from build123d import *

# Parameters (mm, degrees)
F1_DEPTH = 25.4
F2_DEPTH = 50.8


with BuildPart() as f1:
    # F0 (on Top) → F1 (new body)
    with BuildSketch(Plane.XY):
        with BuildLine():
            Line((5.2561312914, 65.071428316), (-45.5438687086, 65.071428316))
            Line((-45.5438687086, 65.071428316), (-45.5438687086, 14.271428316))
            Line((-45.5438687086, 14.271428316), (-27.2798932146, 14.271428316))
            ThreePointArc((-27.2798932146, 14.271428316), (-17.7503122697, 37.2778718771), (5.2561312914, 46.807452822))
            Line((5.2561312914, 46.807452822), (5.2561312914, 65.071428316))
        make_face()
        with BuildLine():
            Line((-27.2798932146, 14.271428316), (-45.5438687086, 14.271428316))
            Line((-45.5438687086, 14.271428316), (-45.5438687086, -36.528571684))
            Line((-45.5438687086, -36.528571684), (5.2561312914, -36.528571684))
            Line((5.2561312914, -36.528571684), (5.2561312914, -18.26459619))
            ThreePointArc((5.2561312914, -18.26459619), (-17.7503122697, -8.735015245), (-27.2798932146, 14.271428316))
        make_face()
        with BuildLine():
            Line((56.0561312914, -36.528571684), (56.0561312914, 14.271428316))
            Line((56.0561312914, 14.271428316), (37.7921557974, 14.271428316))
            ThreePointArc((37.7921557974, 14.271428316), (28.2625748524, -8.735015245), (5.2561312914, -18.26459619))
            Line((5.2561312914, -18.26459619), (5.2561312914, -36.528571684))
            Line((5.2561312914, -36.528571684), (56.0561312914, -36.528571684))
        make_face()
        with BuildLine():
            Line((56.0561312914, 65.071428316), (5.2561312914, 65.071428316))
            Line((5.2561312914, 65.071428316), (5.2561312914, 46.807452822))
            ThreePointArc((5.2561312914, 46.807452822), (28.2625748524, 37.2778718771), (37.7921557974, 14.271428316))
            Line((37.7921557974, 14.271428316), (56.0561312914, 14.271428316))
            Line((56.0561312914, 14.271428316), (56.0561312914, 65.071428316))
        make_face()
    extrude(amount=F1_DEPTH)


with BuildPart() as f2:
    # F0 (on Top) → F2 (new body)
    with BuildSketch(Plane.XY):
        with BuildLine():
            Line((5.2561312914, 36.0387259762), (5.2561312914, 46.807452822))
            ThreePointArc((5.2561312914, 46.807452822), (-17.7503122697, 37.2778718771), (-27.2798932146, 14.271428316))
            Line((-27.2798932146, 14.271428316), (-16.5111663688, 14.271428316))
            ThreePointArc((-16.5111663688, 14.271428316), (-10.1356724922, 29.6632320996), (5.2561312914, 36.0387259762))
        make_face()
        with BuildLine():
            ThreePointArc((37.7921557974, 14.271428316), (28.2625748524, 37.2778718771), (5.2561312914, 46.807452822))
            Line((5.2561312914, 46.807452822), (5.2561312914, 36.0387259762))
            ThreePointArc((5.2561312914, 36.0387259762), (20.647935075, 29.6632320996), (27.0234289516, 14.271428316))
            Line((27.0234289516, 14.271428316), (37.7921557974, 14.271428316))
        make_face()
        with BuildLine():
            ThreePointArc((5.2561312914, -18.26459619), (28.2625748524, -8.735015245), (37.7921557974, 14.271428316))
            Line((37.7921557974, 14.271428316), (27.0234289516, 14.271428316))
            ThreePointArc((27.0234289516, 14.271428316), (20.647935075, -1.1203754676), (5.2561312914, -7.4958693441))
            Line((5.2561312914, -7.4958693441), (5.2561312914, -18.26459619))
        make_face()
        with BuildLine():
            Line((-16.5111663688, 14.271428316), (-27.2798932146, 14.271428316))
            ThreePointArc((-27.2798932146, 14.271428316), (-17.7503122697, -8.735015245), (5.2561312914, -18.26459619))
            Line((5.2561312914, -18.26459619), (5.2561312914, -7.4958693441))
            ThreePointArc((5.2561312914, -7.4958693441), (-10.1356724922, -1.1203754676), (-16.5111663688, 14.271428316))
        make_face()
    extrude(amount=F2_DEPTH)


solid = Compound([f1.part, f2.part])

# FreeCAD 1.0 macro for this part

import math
import FreeCAD as App
import Part
import Sketcher

V = App.Vector
Q = App.Units.Quantity

doc = App.newDocument("Part")
body = doc.addObject("PartDesign::Body", "Body")

# Sketch on XY plane
sketch1 = body.newObject("Sketcher::SketchObject", "Sketch")
sketch1.AttachmentSupport = (doc.getObject("XY_Plane"), [""])
sketch1.MapMode = "FlatFace"
sketch1.addGeometry([
    Part.LineSegment(V(-45.543869, 65.071428, 0), V(-45.543869, -36.528572, 0)),  # 0
    Part.LineSegment(V(-45.543869, -36.528572, 0), V(56.056131, -36.528572, 0)),  # 1
    Part.LineSegment(V(56.056131, -36.528572, 0), V(56.056131, 65.071428, 0)),  # 2
    Part.LineSegment(V(56.056131, 65.071428, 0), V(-45.543869, 65.071428, 0)),  # 3
    Part.ArcOfCircle(Part.Circle(V(5.256131, 14.271428, 0), V(0, 0, 1), 32.536025), math.radians(-90), math.radians(0)),  # 4
    Part.ArcOfCircle(Part.Circle(V(5.256131, 14.271428, 0), V(0, 0, 1), 32.536025), math.radians(180), math.radians(270)),  # 5
    Part.ArcOfCircle(Part.Circle(V(5.256131, 14.271428, 0), V(0, 0, 1), 32.536025), math.radians(90), math.radians(180)),  # 6
    Part.ArcOfCircle(Part.Circle(V(5.256131, 14.271428, 0), V(0, 0, 1), 32.536025), math.radians(0), math.radians(90)),  # 7
], False)
sketch1.addConstraint([
    Sketcher.Constraint("Coincident", 0, 2, 1, 1),
    Sketcher.Constraint("Coincident", 1, 2, 2, 1),
    Sketcher.Constraint("Coincident", 2, 2, 3, 1),
    Sketcher.Constraint("Coincident", 3, 2, 0, 1),
    Sketcher.Constraint("Tangent", 4, 1, 5, 2),
    Sketcher.Constraint("Tangent", 5, 1, 6, 2),
    Sketcher.Constraint("Tangent", 6, 1, 7, 2),
    Sketcher.Constraint("Tangent", 7, 1, 4, 2),
    Sketcher.Constraint("Vertical", 0),
    Sketcher.Constraint("Horizontal", 1),
    Sketcher.Constraint("Vertical", 2),
    Sketcher.Constraint("Horizontal", 3),
    Sketcher.Constraint("Equal", 4, 5),
    Sketcher.Constraint("Horizontal", 7, 3, 5, 1),
    Sketcher.Constraint("Horizontal", 5, 1, 7, 1),
    Sketcher.Constraint("Vertical", 7, 3, 4, 1),
    Sketcher.Constraint("Vertical", 4, 1, 6, 1),
    Sketcher.Constraint("Equal", 3, 0),
    Sketcher.Constraint("DistanceX", 1, 1, 1, 2, Q("4 in")),
    Sketcher.Constraint("DistanceX", 0, 2, 4, 3, Q("2 in")),
    Sketcher.Constraint("DistanceY", 0, 2, 4, 3, Q("2 in")),
    Sketcher.Constraint("Radius", 4, 32.536025),
    Sketcher.Constraint("DistanceX", -1, 1, 4, 3, 5.256131),
    Sketcher.Constraint("DistanceY", -1, 1, 4, 3, 14.271428),
])
pad1 = body.newObject("PartDesign::Pad", "Pad")
pad1.Profile = sketch1
pad1.Length = Q("1 in")
body2 = doc.addObject("PartDesign::Body", "Body001")

# Sketch on XY plane
sketch2 = body2.newObject("Sketcher::SketchObject", "Sketch001")
sketch2.AttachmentSupport = (doc.getObject("XY_Plane001"), [""])
sketch2.MapMode = "FlatFace"
sketch2.addGeometry([
    Part.ArcOfCircle(Part.Circle(V(5.256131, 14.271428, 0), V(0, 0, 1), 32.536025), math.radians(90), math.radians(180)),  # 0
    Part.ArcOfCircle(Part.Circle(V(5.256131, 14.271428, 0), V(0, 0, 1), 32.536025), math.radians(180), math.radians(270)),  # 1
    Part.ArcOfCircle(Part.Circle(V(5.256131, 14.271428, 0), V(0, 0, 1), 32.536025), math.radians(-90), math.radians(0)),  # 2
    Part.ArcOfCircle(Part.Circle(V(5.256131, 14.271428, 0), V(0, 0, 1), 32.536025), math.radians(0), math.radians(90)),  # 3
    Part.ArcOfCircle(Part.Circle(V(5.256131, 14.271428, 0), V(0, 0, 1), 21.767298), math.radians(90), math.radians(180)),  # 4
    Part.ArcOfCircle(Part.Circle(V(5.256131, 14.271428, 0), V(0, 0, 1), 21.767298), math.radians(0), math.radians(90)),  # 5
    Part.ArcOfCircle(Part.Circle(V(5.256131, 14.271428, 0), V(0, 0, 1), 21.767298), math.radians(-90), math.radians(0)),  # 6
    Part.ArcOfCircle(Part.Circle(V(5.256131, 14.271428, 0), V(0, 0, 1), 21.767298), math.radians(180), math.radians(270)),  # 7
], False)
sketch2.addConstraint([
    Sketcher.Constraint("Tangent", 0, 2, 1, 1),
    Sketcher.Constraint("Tangent", 1, 2, 2, 1),
    Sketcher.Constraint("Tangent", 2, 2, 3, 1),
    Sketcher.Constraint("Tangent", 3, 2, 0, 1),
    Sketcher.Constraint("Tangent", 4, 1, 5, 2),
    Sketcher.Constraint("Tangent", 5, 1, 6, 2),
    Sketcher.Constraint("Tangent", 6, 1, 7, 2),
    Sketcher.Constraint("Tangent", 7, 1, 4, 2),
    Sketcher.Constraint("Coincident", 4, 3, 0, 3),
    Sketcher.Constraint("Equal", 0, 1),
    Sketcher.Constraint("Equal", 4, 5),
    Sketcher.Constraint("Horizontal", 7, 3, 0, 2),
    Sketcher.Constraint("Horizontal", 0, 2, 2, 2),
    Sketcher.Constraint("Horizontal", 2, 2, 5, 1),
    Sketcher.Constraint("Horizontal", 5, 1, 7, 1),
    Sketcher.Constraint("Vertical", 7, 3, 1, 2),
    Sketcher.Constraint("Vertical", 1, 2, 3, 2),
    Sketcher.Constraint("Vertical", 3, 2, 4, 1),
    Sketcher.Constraint("Vertical", 4, 1, 6, 1),
    Sketcher.Constraint("Radius", 0, 32.536025),
    Sketcher.Constraint("Radius", 4, 21.767298),
    Sketcher.Constraint("DistanceX", -1, 1, 0, 3, 5.256131),
    Sketcher.Constraint("DistanceY", -1, 1, 0, 3, 14.271428),
])
pad2 = body2.newObject("PartDesign::Pad", "Pad001")
pad2.Profile = sketch2
pad2.Length = Q("2 in")

doc.recompute()
